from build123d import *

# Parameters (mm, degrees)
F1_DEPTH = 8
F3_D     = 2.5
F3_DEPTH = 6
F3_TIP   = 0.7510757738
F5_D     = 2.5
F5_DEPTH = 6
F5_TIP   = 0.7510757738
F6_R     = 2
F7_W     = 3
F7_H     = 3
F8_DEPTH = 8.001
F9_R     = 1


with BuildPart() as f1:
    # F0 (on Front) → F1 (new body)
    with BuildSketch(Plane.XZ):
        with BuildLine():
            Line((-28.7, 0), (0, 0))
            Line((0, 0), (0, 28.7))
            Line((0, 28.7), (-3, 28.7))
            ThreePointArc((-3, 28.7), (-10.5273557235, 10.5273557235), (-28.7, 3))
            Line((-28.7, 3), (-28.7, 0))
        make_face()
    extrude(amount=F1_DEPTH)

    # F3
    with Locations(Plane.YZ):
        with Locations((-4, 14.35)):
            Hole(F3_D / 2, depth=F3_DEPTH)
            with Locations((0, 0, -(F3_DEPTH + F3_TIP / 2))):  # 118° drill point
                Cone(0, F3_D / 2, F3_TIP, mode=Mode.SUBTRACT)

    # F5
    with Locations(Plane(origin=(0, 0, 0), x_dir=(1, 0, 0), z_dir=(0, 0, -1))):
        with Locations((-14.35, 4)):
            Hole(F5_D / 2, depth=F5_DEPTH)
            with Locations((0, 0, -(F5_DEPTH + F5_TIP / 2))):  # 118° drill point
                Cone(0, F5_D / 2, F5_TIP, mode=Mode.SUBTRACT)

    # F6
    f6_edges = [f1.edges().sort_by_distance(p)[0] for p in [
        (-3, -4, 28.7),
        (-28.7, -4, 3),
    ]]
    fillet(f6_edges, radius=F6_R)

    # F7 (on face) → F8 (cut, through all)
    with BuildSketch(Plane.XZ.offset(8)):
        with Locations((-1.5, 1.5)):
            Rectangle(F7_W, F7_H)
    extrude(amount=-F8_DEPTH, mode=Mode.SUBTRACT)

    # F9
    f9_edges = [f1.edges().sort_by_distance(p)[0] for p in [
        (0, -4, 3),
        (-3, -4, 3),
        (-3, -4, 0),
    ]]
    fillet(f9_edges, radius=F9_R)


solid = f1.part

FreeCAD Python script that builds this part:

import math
import FreeCAD as App
import Part
import Sketcher
from FreeCAD import Vector
Q = App.Units.Quantity


def edges_at(feature, points):
    """Names of the edges that pass closest to the given points."""
    edges = feature.Shape.Edges
    near = lambda p: min(range(len(edges)), key=lambda i: edges[i].distToShape(Part.Vertex(*p))[0])
    return sorted({f"Edge{near(p) + 1}" for p in points})


def add_polygon(sketch, points):
    """Adds a closed chain of lines whose ends are joined by coincident constraints."""
    first, n = sketch.GeometryCount, len(points)
    for a, b in zip(points, points[1:] + points[:1]):
        sketch.addGeometry(Part.LineSegment(App.Vector(*a, 0), App.Vector(*b, 0)), False)
    for i in range(n):
        sketch.addConstraint(Sketcher.Constraint("Coincident", first + i, 2, first + (i + 1) % n, 1))

doc = App.newDocument("Part")
body = doc.addObject("PartDesign::Body", "Body")

# Sketch on XZ plane
sketch1 = body.newObject("Sketcher::SketchObject", "Sketch")
sketch1.AttachmentSupport = (doc.getObject("XZ_Plane"), [""])
sketch1.MapMode = "FlatFace"
sketch1.addGeometry([
    Part.LineSegment(Vector(-28.7, 0, 0), Vector(0, 0, 0)),  # 0
    Part.LineSegment(Vector(0, 0, 0), Vector(0, 28.7, 0)),  # 1
    Part.LineSegment(Vector(0, 28.7, 0), Vector(-3, 28.7, 0)),  # 2
    Part.ArcOfCircle(Part.Circle(Vector(-28.7, 28.7, 0), Vector(0, 0, 1), 25.7), math.radians(-90), math.radians(0)),  # 3
    Part.LineSegment(Vector(-28.7, 3, 0), Vector(-28.7, 0, 0)),  # 4
], False)
sketch1.addConstraint([
    Sketcher.Constraint("Coincident", 0, 2, 1, 1),
    Sketcher.Constraint("Coincident", 1, 2, 2, 1),
    Sketcher.Constraint("Coincident", 2, 2, 3, 2),
    Sketcher.Constraint("Coincident", 3, 1, 4, 1),
    Sketcher.Constraint("Coincident", 4, 2, 0, 1),
    Sketcher.Constraint("Horizontal", 0),
    Sketcher.Constraint("Vertical", 1),
    Sketcher.Constraint("Horizontal", 2),
    Sketcher.Constraint("Vertical", 4),
    Sketcher.Constraint("Coincident", 0, 2, -1, 1),
    Sketcher.Constraint("Horizontal", 3, 3, 1, 2),
    Sketcher.Constraint("Equal", 0, 1),
    Sketcher.Constraint("Equal", 2, 4),
    Sketcher.Constraint("Radius", 3, Q("25.7 mm")),
    Sketcher.Constraint("DistanceX", 2, 2, 2, 1, Q("3 mm")),
])
pad1 = body.newObject("PartDesign::Pad", "Pad")
pad1.Profile = sketch1
pad1.Length = 8

# Sketch on YZ plane
sketch2 = body.newObject("Sketcher::SketchObject", "Sketch001")
sketch2.AttachmentSupport = (doc.getObject("YZ_Plane"), [""])
sketch2.MapMode = "FlatFace"
sketch2.addGeometry(Part.Circle(Vector(-4, 14.35, 0), Vector(0, 0, 1), 1.25), False)
sketch2.addConstraint([
    Sketcher.Constraint("Diameter", 0, Q("2.5 mm")),
    Sketcher.Constraint("DistanceX", 0, 3, -1, 1, Q("4 mm")),
    Sketcher.Constraint("DistanceY", -1, 1, 0, 3, Q("14.35 mm")),
])
doc.recompute()
hole = body.newObject("PartDesign::Hole", "Hole")
hole.Profile = sketch2
hole.ThreadType = "None"
hole.Diameter = 2.5
hole.DepthType = "Dimension"
hole.Depth = 6
hole.DrillPoint = "Angled"
hole.DrillPointAngle = 118

# Sketch on XY plane
sketch3 = body.newObject("Sketcher::SketchObject", "Sketch002")
sketch3.AttachmentSupport = (doc.getObject("XY_Plane"), [""])
sketch3.MapMode = "FlatFace"
sketch3.addGeometry(Part.Circle(Vector(-14.35, -4, 0), Vector(0, 0, 1), 1.25), False)
sketch3.addConstraint([
    Sketcher.Constraint("Diameter", 0, Q("2.5 mm")),
    Sketcher.Constraint("DistanceY", 0, 3, -1, 1, Q("4 mm")),
    Sketcher.Constraint("DistanceX", 0, 3, -1, 1, Q("14.35 mm")),
])
doc.recompute()
hole2 = body.newObject("PartDesign::Hole", "Hole001")
hole2.Profile = sketch3
hole2.ThreadType = "None"
hole2.Diameter = 2.5
hole2.DepthType = "Dimension"
hole2.Depth = 6
hole2.DrillPoint = "Angled"
hole2.DrillPointAngle = 118
hole2.Reversed = True
doc.recompute()

fillet = body.newObject("PartDesign::Fillet", "Fillet")
fillet.Base = (hole2, edges_at(hole2, [(-3, -4, 28.7), (-28.7, -4, 3)]))
fillet.Radius = 2

# Sketch on XZ plane
sketch4 = body.newObject("Sketcher::SketchObject", "Sketch003")
sketch4.AttachmentSupport = (doc.getObject("XZ_Plane"), [""])
sketch4.MapMode = "FlatFace"
sketch4.AttachmentOffset = App.Placement(Vector(0, 0, 8), App.Rotation())
add_polygon(sketch4, [(-3, 3), (-3, 0), (0, 0), (0, 3)])  # lines 0-3
sketch4.addConstraint([
    Sketcher.Constraint("Vertical", 0),
    Sketcher.Constraint("Horizontal", 1),
    Sketcher.Constraint("Vertical", 2),
    Sketcher.Constraint("Horizontal", 3),
    Sketcher.Constraint("Coincident", 1, 2, -1, 1),
    Sketcher.Constraint("Equal", 3, 0),
    Sketcher.Constraint("DistanceX", 1, 1, 1, 2, Q("3 mm")),
])
pocket1 = body.newObject("PartDesign::Pocket", "Pocket")
pocket1.Profile = sketch4
pocket1.Type = "ThroughAll"
doc.recompute()

fillet2 = body.newObject("PartDesign::Fillet", "Fillet001")
fillet2.Base = (pocket1, edges_at(pocket1, [(0, -4, 3), (-3, -4, 3), (-3, -4, 0)]))
fillet2.Radius = 1

doc.recompute()
